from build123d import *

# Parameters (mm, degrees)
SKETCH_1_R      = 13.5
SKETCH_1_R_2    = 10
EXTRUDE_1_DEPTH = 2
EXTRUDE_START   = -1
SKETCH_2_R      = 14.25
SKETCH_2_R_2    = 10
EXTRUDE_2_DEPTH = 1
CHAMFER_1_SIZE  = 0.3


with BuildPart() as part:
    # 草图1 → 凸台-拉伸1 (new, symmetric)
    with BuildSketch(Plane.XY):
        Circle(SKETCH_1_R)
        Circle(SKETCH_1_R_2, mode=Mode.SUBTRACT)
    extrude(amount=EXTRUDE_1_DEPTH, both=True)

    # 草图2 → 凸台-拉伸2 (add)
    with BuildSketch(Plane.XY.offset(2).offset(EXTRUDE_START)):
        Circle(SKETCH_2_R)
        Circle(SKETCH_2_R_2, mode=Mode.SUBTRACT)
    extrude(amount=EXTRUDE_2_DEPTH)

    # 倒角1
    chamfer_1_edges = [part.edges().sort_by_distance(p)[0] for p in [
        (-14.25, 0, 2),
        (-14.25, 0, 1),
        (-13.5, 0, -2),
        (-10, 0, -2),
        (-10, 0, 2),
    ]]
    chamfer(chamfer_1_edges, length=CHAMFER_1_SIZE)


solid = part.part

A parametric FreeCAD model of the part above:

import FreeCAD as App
import Part
import Sketcher


def edges_at(feature, points):
    """Names of the edges that pass closest to the given points."""
    edges = feature.Shape.Edges
    near = lambda p: min(range(len(edges)), key=lambda i: edges[i].distToShape(Part.Vertex(*p))[0])
    return sorted({f"Edge{near(p) + 1}" for p in points})

doc = App.newDocument("Part")
body = doc.addObject("PartDesign::Body", "Body")

sketch1 = doc.addObject("Sketcher::SketchObject", "Sketch")
body.addObject(sketch1)
sketch1.AttachmentSupport = (doc.XY_Plane, [""])
sketch1.MapMode = "FlatFace"
sketch1.addGeometry(Part.Circle(App.Vector(0, 0, 0), App.Vector(0, 0, 1), 13.5), False)
sketch1.addGeometry(Part.Circle(App.Vector(0, 0, 0), App.Vector(0, 0, 1), 10), False)
sketch1.addConstraint(Sketcher.Constraint("Coincident", 0, 3, -1, 1))
sketch1.addConstraint(Sketcher.Constraint("Coincident", 1, 3, -1, 1))
sketch1.addConstraint(Sketcher.Constraint("Diameter", 0, 27.0))
sketch1.addConstraint(Sketcher.Constraint("Diameter", 1, 20.0))
pad1 = doc.addObject("PartDesign::Pad", "Pad")
body.addObject(pad1)
pad1.Profile = sketch1
pad1.Length = 4
pad1.Midplane = True

sketch2 = doc.addObject("Sketcher::SketchObject", "Sketch001")
body.addObject(sketch2)
sketch2.AttachmentSupport = (doc.XY_Plane, [""])
sketch2.MapMode = "FlatFace"
sketch2.AttachmentOffset = App.Placement(App.Vector(0, 0, 1), App.Rotation())
sketch2.addGeometry(Part.Circle(App.Vector(0, 0, 0), App.Vector(0, 0, 1), 14.25), False)
sketch2.addGeometry(Part.Circle(App.Vector(0, 0, 0), App.Vector(0, 0, 1), 10), False)
sketch2.addConstraint(Sketcher.Constraint("Coincident", 0, 3, -1, 1))
sketch2.addConstraint(Sketcher.Constraint("Coincident", 1, 3, -1, 1))
sketch2.addConstraint(Sketcher.Constraint("Diameter", 1, 20.0))
sketch2.addConstraint(Sketcher.Constraint("Diameter", 0, 28.5))
pad2 = doc.addObject("PartDesign::Pad", "Pad001")
body.addObject(pad2)
pad2.Profile = sketch2
pad2.Length = 1
doc.recompute()

chamfer = doc.addObject("PartDesign::Chamfer", "Chamfer")
body.addObject(chamfer)
chamfer.Base = (pad2, edges_at(pad2, [
    (-14.25, 0, 2),
    (-14.25, 0, 1),
    (-13.5, 0, -2),
    (-10, 0, -2),
    (-10, 0, 2),
]))
chamfer.Size = 0.3

doc.recompute()
